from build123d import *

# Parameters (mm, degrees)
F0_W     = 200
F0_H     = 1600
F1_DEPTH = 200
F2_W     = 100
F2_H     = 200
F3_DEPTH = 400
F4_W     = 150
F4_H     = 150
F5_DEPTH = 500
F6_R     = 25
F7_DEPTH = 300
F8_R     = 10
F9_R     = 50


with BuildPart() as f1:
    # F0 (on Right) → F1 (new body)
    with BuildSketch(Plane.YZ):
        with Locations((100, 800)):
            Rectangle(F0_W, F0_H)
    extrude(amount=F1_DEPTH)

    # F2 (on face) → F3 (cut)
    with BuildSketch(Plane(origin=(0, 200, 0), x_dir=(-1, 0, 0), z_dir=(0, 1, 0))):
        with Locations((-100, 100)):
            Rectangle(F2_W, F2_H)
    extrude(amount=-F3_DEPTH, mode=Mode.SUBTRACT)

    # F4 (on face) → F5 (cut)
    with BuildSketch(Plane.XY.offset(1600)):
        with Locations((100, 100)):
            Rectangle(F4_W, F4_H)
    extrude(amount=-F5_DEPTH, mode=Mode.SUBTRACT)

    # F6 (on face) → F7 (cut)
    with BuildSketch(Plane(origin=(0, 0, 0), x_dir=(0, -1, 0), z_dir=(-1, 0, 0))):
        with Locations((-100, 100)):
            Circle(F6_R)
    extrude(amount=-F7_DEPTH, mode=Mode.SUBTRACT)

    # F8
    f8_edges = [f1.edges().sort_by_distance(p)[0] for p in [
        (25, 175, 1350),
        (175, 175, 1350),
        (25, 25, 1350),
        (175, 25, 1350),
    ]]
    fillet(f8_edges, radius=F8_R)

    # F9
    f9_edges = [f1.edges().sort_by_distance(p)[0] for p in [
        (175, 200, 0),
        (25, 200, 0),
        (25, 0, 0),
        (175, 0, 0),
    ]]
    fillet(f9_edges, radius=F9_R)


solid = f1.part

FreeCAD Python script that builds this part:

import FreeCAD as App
import Part
import Sketcher
Q = App.Units.Quantity


def edges_at(feature, points):
    """Names of the edges that pass closest to the given points."""
    edges = feature.Shape.Edges
    near = lambda p: min(range(len(edges)), key=lambda i: edges[i].distToShape(Part.Vertex(*p))[0])
    return sorted({f"Edge{near(p) + 1}" for p in points})

doc = App.newDocument("Part")
body = doc.addObject("PartDesign::Body", "Body")

# Sketch on YZ plane
sketch1 = body.newObject("Sketcher::SketchObject", "Sketch")
sketch1.AttachmentSupport = (doc.getObject("YZ_Plane"), [""])
sketch1.MapMode = "FlatFace"
sketch1.addGeometry([
    Part.LineSegment(App.Vector(0, 1600, 0), App.Vector(0, 0, 0)),
    Part.LineSegment(App.Vector(0, 0, 0), App.Vector(200, 0, 0)),
    Part.LineSegment(App.Vector(200, 0, 0), App.Vector(200, 1600, 0)),
    Part.LineSegment(App.Vector(200, 1600, 0), App.Vector(0, 1600, 0)),
], False)
sketch1.addConstraint([
    Sketcher.Constraint("Coincident", 0, 2, 1, 1),
    Sketcher.Constraint("Coincident", 1, 2, 2, 1),
    Sketcher.Constraint("Coincident", 2, 2, 3, 1),
    Sketcher.Constraint("Coincident", 3, 2, 0, 1),
    Sketcher.Constraint("Vertical", 0),
    Sketcher.Constraint("Horizontal", 1),
    Sketcher.Constraint("Vertical", 2),
    Sketcher.Constraint("Horizontal", 3),
    Sketcher.Constraint("Coincident", 0, 2, -1, 1),
    Sketcher.Constraint("DistanceX", 1, 1, 1, 2, Q("200 mm")),
    Sketcher.Constraint("DistanceY", 0, 2, 0, 1, Q("1600 mm")),
])
pad1 = body.newObject("PartDesign::Pad", "Pad")
pad1.Profile = sketch1
pad1.Length = 200

# Sketch on XZ plane
sketch2 = body.newObject("Sketcher::SketchObject", "Sketch001")
sketch2.AttachmentSupport = (doc.getObject("XZ_Plane"), [""])
sketch2.MapMode = "FlatFace"
sketch2.AttachmentOffset = App.Placement(App.Vector(0, 0, -200), App.Rotation())
sketch2.addGeometry([
    Part.LineSegment(App.Vector(150, 200, 0), App.Vector(150, 0, 0)),
    Part.LineSegment(App.Vector(150, 0, 0), App.Vector(50, 0, 0)),
    Part.LineSegment(App.Vector(50, 0, 0), App.Vector(50, 200, 0)),
    Part.LineSegment(App.Vector(50, 200, 0), App.Vector(150, 200, 0)),
], False)
sketch2.addConstraint([
    Sketcher.Constraint("Coincident", 0, 2, 1, 1),
    Sketcher.Constraint("Coincident", 1, 2, 2, 1),
    Sketcher.Constraint("Coincident", 2, 2, 3, 1),
    Sketcher.Constraint("Coincident", 3, 2, 0, 1),
    Sketcher.Constraint("Vertical", 0),
    Sketcher.Constraint("Horizontal", 1),
    Sketcher.Constraint("Vertical", 2),
    Sketcher.Constraint("Horizontal", 3),
    Sketcher.Constraint("PointOnObject", 0, 2, -1),
    Sketcher.Constraint("DistanceX", 1, 2, 1, 1, Q("100 mm")),
    Sketcher.Constraint("DistanceY", 0, 2, 0, 1, Q("200 mm")),
    Sketcher.Constraint("DistanceX", -1, 1, 0, 2, Q("150 mm")),
])
pocket1 = body.newObject("PartDesign::Pocket", "Pocket")
pocket1.Profile = sketch2
pocket1.Length = 400
pocket1.Reversed = True

# Sketch on XY plane
sketch3 = body.newObject("Sketcher::SketchObject", "Sketch002")
sketch3.AttachmentSupport = (doc.getObject("XY_Plane"), [""])
sketch3.MapMode = "FlatFace"
sketch3.AttachmentOffset = App.Placement(App.Vector(0, 0, 1600), App.Rotation())
sketch3.addGeometry([
    Part.LineSegment(App.Vector(25, 175, 0), App.Vector(25, 25, 0)),
    Part.LineSegment(App.Vector(25, 25, 0), App.Vector(175, 25, 0)),
    Part.LineSegment(App.Vector(175, 25, 0), App.Vector(175, 175, 0)),
    Part.LineSegment(App.Vector(175, 175, 0), App.Vector(25, 175, 0)),
], False)
sketch3.addConstraint([
    Sketcher.Constraint("Coincident", 0, 2, 1, 1),
    Sketcher.Constraint("Coincident", 1, 2, 2, 1),
    Sketcher.Constraint("Coincident", 2, 2, 3, 1),
    Sketcher.Constraint("Coincident", 3, 2, 0, 1),
    Sketcher.Constraint("Vertical", 0),
    Sketcher.Constraint("Horizontal", 1),
    Sketcher.Constraint("Vertical", 2),
    Sketcher.Constraint("Horizontal", 3),
    Sketcher.Constraint("Equal", 3, 0),
    Sketcher.Constraint("DistanceX", 1, 1, 1, 2, Q("150 mm")),
    Sketcher.Constraint("DistanceX", -1, 1, 0, 2, Q("25 mm")),
    Sketcher.Constraint("DistanceY", -1, 1, 0, 2, Q("25 mm")),
])
pocket2 = body.newObject("PartDesign::Pocket", "Pocket001")
pocket2.Profile = sketch3
pocket2.Length = 500

# Sketch on YZ plane
sketch4 = body.newObject("Sketcher::SketchObject", "Sketch003")
sketch4.AttachmentSupport = (doc.getObject("YZ_Plane"), [""])
sketch4.MapMode = "FlatFace"
sketch4.addGeometry(Part.Circle(App.Vector(100, 100, 0), App.Vector(0, 0, 1), 25), False)
sketch4.addConstraint([
    Sketcher.Constraint("Diameter", 0, Q("50 mm")),
    Sketcher.Constraint("DistanceX", -1, 1, 0, 3, Q("100 mm")),
    Sketcher.Constraint("DistanceY", -1, 1, 0, 3, Q("100 mm")),
])
pocket3 = body.newObject("PartDesign::Pocket", "Pocket002")
pocket3.Profile = sketch4
pocket3.Length = 300
pocket3.Reversed = True
doc.recompute()

fillet = body.newObject("PartDesign::Fillet", "Fillet")
fillet.Base = (pocket3, edges_at(pocket3, [
    (25, 175, 1350),
    (175, 175, 1350),
    (25, 25, 1350),
    (175, 25, 1350),
]))
fillet.Radius = 10
doc.recompute()

fillet2 = body.newObject("PartDesign::Fillet", "Fillet001")
fillet2.Base = (fillet, edges_at(fillet, [
    (175, 200, 0),
    (25, 200, 0),
    (25, 0, 0),
    (175, 0, 0),
]))
fillet2.Radius = 50

doc.recompute()
